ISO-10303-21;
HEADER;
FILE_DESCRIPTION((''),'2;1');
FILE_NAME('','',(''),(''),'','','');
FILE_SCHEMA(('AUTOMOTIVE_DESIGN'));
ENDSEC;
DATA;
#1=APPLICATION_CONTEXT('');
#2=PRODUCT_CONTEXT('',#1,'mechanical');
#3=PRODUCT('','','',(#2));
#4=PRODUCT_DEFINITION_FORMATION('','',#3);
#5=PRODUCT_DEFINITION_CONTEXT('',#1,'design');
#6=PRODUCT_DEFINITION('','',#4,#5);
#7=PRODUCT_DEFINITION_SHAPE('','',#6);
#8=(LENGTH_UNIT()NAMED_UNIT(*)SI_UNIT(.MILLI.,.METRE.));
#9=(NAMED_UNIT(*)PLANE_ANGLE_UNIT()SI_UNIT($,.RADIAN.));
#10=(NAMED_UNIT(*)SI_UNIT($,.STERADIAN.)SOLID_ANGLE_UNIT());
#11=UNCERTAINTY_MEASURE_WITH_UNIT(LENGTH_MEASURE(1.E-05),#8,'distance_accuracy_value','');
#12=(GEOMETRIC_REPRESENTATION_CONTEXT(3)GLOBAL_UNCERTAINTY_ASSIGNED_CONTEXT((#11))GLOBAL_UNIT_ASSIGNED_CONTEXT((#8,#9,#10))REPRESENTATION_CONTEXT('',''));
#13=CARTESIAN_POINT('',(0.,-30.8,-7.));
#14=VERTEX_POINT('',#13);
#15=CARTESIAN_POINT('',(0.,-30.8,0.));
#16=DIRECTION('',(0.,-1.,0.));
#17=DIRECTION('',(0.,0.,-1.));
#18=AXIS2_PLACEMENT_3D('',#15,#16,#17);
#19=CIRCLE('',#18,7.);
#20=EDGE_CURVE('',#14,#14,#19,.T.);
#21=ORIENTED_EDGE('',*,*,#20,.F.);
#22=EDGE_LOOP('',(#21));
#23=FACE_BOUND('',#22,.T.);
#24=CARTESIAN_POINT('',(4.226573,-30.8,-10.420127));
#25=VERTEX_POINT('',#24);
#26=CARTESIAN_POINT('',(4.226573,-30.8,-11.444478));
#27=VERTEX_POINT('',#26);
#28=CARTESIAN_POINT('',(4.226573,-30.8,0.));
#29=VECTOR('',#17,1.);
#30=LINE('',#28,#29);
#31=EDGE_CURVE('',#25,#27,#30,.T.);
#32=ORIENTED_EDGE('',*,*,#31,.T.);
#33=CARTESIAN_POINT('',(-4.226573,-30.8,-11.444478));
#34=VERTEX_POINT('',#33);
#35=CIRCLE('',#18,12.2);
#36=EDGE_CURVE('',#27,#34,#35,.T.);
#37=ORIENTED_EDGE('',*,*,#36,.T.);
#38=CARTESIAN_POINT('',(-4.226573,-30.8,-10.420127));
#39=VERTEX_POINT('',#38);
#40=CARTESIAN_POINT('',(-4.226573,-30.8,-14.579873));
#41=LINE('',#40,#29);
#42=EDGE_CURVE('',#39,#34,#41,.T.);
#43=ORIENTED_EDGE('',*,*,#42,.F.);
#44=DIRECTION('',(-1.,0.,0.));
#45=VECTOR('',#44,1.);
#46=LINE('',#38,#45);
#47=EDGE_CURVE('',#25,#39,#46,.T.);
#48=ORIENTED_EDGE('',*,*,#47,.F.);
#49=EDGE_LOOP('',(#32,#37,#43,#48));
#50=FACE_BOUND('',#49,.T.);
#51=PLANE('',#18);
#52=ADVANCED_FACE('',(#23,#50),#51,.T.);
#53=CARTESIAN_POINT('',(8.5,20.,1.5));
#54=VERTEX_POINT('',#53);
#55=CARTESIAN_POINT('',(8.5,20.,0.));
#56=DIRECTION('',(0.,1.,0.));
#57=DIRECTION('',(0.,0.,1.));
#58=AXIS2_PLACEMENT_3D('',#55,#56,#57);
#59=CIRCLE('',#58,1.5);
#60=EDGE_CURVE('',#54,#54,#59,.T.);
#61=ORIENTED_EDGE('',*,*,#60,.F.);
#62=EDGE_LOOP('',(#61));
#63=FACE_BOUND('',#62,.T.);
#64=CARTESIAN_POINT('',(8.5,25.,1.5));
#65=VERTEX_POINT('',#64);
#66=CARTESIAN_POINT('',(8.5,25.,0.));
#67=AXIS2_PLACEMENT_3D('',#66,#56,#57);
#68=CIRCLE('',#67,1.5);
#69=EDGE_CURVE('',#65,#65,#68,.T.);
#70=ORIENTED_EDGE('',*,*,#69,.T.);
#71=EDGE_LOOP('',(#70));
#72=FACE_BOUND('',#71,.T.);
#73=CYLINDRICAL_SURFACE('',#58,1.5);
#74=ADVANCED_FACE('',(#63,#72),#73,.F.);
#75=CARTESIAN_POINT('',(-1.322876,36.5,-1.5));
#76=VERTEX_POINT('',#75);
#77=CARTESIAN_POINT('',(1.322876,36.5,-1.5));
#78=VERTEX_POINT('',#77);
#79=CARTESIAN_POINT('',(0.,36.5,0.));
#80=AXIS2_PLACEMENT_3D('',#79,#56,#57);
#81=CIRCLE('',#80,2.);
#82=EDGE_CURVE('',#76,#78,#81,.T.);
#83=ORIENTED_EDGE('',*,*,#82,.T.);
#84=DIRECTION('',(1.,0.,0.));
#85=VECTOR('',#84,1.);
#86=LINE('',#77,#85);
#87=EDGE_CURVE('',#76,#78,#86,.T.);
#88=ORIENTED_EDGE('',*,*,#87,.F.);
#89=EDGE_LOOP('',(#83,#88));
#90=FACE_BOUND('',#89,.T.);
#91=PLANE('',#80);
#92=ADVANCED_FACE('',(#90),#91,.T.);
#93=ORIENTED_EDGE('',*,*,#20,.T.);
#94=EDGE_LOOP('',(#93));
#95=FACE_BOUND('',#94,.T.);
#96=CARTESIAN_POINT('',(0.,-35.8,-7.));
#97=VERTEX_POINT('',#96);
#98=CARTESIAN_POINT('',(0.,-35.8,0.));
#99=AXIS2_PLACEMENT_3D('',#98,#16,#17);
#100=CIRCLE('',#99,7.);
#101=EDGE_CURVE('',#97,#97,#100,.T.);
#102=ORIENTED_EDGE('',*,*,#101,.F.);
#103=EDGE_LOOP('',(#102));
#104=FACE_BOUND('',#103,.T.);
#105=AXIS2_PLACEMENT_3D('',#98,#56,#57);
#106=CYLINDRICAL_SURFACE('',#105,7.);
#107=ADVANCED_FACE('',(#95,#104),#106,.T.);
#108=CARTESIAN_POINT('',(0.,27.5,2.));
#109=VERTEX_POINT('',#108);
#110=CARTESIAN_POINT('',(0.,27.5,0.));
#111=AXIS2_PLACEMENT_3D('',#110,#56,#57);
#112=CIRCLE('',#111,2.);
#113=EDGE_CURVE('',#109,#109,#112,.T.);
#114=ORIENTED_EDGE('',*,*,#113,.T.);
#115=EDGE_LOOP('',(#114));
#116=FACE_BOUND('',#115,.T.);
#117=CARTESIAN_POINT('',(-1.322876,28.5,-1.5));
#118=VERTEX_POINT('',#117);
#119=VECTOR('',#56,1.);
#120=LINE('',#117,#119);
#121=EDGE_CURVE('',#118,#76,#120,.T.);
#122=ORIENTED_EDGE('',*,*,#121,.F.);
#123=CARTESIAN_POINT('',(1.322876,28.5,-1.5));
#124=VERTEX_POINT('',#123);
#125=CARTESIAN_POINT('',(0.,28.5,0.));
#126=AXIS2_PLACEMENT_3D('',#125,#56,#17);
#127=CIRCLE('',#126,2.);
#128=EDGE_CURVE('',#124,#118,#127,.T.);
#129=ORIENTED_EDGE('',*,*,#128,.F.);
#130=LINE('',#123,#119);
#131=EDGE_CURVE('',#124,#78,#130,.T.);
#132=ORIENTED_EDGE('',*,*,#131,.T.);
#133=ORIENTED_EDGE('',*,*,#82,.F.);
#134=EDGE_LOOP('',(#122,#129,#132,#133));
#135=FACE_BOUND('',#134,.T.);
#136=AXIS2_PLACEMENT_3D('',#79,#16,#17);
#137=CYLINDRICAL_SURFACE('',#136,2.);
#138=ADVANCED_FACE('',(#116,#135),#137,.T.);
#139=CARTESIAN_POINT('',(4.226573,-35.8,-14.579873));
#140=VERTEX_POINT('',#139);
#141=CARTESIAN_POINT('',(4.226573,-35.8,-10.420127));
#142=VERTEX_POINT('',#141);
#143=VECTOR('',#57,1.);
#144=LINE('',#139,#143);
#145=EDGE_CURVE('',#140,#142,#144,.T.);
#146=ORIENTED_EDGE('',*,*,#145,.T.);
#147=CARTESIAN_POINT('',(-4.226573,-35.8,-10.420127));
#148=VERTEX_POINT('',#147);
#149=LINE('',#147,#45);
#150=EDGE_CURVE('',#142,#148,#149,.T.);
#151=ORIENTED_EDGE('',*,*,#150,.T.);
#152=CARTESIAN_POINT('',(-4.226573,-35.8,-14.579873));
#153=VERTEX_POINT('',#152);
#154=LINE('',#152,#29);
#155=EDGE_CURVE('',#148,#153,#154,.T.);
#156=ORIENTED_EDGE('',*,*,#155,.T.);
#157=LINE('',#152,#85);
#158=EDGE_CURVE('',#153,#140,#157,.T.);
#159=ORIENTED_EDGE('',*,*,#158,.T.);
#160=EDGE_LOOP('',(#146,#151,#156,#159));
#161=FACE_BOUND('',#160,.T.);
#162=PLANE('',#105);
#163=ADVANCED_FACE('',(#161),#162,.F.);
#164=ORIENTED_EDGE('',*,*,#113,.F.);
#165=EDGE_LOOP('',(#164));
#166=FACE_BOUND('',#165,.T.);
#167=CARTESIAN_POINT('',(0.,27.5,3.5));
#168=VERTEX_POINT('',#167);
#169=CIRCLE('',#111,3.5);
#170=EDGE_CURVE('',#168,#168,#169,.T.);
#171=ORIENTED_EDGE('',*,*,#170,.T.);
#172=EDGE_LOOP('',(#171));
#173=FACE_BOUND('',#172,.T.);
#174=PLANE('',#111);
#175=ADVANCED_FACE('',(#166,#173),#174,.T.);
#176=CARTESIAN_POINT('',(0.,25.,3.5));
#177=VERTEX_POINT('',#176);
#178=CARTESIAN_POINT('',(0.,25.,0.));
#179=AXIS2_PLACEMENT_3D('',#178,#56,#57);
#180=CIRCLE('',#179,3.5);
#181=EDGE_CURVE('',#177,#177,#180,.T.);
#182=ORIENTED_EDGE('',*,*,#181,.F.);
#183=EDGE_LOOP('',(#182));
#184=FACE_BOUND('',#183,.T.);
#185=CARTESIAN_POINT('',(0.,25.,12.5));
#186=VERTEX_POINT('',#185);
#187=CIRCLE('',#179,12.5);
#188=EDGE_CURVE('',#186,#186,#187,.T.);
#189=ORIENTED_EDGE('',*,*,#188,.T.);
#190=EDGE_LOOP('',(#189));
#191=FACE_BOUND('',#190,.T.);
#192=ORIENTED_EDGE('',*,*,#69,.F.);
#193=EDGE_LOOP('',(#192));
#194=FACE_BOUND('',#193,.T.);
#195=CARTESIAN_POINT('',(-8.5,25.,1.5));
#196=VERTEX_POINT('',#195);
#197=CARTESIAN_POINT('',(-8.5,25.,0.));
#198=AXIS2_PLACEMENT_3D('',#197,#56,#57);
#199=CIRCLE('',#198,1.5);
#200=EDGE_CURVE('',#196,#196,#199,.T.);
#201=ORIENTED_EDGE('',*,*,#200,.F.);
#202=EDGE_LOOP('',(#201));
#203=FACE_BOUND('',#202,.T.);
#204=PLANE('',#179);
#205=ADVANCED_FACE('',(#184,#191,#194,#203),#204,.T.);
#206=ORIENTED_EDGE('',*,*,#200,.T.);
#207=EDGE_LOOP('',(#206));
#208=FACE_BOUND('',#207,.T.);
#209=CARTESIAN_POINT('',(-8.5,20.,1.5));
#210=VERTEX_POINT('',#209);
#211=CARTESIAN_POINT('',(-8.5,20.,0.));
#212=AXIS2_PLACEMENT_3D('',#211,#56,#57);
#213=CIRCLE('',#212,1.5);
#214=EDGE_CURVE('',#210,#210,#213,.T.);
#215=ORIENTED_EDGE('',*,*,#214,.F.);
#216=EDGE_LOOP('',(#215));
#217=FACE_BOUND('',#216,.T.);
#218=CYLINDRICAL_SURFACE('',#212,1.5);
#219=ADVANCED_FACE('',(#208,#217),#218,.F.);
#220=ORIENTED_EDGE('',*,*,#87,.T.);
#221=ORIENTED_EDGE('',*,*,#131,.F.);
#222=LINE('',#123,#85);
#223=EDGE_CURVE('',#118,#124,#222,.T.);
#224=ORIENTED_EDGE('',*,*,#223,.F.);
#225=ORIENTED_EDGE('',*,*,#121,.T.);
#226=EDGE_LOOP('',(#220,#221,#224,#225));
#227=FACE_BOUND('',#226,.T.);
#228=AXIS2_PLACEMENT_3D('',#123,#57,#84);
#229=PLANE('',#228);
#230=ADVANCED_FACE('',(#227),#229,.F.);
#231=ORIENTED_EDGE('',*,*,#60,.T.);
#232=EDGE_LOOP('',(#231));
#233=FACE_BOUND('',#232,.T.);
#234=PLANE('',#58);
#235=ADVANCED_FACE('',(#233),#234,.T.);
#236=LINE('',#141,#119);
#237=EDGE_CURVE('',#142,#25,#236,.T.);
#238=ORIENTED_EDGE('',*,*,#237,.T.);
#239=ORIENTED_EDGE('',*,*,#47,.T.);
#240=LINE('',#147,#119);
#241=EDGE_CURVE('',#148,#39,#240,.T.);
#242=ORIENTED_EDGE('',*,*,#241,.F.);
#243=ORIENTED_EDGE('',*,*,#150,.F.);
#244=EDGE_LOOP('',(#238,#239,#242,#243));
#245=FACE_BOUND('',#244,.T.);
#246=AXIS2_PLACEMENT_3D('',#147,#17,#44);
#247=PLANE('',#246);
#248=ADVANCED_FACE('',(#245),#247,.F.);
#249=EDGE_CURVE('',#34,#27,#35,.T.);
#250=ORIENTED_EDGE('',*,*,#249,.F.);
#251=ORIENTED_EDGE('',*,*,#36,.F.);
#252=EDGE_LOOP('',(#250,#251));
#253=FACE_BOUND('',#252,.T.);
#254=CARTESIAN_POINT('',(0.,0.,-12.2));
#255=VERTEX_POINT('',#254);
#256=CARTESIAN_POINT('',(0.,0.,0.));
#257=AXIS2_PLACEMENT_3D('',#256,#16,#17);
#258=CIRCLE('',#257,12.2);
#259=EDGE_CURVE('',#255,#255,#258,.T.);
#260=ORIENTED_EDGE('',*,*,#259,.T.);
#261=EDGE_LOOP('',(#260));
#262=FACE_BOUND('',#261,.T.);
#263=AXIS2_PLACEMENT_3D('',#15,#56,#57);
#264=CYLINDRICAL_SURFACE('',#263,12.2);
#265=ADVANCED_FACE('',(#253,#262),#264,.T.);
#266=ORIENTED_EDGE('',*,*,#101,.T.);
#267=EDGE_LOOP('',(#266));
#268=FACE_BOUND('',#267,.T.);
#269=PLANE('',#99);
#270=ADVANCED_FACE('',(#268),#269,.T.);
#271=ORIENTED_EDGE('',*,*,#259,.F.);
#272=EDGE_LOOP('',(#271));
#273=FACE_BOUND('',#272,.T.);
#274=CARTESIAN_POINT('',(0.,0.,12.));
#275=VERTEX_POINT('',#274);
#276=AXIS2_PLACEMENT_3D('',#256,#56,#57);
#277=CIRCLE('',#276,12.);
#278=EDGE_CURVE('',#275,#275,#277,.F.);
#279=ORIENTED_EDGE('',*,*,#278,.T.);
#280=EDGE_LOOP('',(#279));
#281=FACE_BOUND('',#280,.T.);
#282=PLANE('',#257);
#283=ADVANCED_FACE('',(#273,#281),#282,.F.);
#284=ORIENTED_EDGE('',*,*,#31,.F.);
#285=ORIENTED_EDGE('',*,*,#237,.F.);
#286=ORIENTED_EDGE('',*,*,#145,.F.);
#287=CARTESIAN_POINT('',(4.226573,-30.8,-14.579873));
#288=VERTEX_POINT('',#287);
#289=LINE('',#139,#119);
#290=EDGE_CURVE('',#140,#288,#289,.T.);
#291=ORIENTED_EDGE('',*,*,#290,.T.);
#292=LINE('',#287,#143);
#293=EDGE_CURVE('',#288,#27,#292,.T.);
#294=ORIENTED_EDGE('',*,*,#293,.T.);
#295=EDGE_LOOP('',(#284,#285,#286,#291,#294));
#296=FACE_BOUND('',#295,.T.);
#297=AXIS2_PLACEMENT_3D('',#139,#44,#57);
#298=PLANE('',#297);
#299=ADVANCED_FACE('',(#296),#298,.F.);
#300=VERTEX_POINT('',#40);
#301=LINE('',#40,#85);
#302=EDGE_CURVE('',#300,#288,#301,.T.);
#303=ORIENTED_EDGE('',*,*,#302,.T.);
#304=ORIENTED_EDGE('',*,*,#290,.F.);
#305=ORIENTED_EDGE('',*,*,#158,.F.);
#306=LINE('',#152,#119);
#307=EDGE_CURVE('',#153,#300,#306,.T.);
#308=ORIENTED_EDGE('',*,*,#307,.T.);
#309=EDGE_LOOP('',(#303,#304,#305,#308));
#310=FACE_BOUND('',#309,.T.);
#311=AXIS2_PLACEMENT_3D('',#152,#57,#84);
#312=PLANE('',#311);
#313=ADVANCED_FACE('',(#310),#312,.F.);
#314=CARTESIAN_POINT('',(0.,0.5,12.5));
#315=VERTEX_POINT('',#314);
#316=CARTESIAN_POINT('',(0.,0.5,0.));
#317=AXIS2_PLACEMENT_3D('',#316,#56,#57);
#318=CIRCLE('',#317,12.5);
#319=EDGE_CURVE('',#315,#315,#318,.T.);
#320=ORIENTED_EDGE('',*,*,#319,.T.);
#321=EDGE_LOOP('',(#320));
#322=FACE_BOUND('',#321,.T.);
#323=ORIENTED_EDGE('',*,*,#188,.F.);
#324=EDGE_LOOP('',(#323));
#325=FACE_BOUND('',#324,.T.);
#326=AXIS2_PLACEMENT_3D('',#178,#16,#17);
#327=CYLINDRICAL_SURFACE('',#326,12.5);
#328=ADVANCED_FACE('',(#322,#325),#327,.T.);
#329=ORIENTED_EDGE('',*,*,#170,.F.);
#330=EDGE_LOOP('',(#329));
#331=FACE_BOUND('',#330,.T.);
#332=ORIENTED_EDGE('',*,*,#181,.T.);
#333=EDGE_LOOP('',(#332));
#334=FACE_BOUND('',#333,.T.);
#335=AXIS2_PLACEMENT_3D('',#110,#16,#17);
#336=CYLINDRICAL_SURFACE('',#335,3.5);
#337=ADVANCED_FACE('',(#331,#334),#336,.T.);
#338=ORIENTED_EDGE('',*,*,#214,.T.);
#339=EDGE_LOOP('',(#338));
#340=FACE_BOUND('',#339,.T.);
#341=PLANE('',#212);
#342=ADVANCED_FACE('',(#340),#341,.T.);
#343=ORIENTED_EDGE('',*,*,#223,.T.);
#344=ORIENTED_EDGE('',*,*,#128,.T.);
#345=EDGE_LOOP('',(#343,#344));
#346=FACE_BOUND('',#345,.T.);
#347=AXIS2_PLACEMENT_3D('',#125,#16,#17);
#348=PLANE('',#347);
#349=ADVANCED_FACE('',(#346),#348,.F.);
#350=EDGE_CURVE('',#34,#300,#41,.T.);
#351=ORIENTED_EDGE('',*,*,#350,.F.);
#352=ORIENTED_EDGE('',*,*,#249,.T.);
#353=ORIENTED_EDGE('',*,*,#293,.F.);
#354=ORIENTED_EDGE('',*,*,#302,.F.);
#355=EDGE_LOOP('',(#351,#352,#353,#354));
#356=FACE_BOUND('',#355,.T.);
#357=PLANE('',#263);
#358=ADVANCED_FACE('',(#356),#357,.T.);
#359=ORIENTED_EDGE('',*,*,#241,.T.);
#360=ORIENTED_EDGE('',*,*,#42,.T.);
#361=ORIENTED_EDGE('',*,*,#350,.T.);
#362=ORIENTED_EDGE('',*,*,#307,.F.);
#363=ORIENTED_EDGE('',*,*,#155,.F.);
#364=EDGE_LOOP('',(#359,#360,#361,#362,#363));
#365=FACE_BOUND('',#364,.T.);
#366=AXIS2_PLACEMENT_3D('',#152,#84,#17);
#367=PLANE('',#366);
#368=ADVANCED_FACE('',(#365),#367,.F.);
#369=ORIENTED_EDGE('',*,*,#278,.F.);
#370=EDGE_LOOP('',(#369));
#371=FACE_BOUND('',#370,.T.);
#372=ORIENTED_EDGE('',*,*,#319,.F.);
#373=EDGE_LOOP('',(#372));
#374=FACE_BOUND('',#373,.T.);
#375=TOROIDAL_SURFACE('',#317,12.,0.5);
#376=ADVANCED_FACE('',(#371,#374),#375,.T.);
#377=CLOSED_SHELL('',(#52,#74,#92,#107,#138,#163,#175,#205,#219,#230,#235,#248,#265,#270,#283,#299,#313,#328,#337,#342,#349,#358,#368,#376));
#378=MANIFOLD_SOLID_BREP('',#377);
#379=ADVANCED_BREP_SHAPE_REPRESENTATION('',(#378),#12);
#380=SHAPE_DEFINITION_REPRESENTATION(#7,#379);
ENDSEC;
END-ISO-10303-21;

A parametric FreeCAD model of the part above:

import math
import FreeCAD as App
import Part
import Sketcher

V = App.Vector
Q = App.Units.Quantity


def edges_at(feature, points):
    """Names of the edges that pass closest to the given points."""
    edges = feature.Shape.Edges
    near = lambda p: min(range(len(edges)), key=lambda i: edges[i].distToShape(Part.Vertex(*p))[0])
    return sorted({f"Edge{near(p) + 1}" for p in points})


def add_polygon(sketch, points):
    """Adds a closed chain of lines whose ends are joined by coincident constraints."""
    first, n = sketch.GeometryCount, len(points)
    for a, b in zip(points, points[1:] + points[:1]):
        sketch.addGeometry(Part.LineSegment(App.Vector(*a, 0), App.Vector(*b, 0)), False)
    for i in range(n):
        sketch.addConstraint(Sketcher.Constraint("Coincident", first + i, 2, first + (i + 1) % n, 1))

doc = App.newDocument("Part")
params = doc.addObject("Spreadsheet::Sheet", "Params")
for row, (alias, value) in enumerate([
    ("sketch1_diameter", "25 mm"),
    ("pad1_length", "25 mm"),
    ("fillet_radius", "0.5 mm"),
    ("sketch2_diameter", "24.4 mm"),
    ("pad2_length", "30.8 mm"),
    ("sketch3_diameter", "7 mm"),
    ("pad3_length", "2.5 mm"),
    ("sketch4_diameter", "4 mm"),
    ("pad4_length", "9 mm"),
    ("sketch5_radius", "2 mm"),
    ("pocket1_length", "8 mm"),
    ("sketch6_diameter", "3 mm"),
    ("pocket2_length", "5 mm"),
    ("sketch7_diameter", "14 mm"),
    ("pad5_length", "5 mm"),
], start=1):
    params.set(f"A{row}", alias)
    params.set(f"B{row}", "=" + value)
    params.setAlias(f"B{row}", alias)

body = doc.addObject("PartDesign::Body", "Body")

# Sketch on XZ plane
sketch1 = body.newObject("Sketcher::SketchObject", "Sketch")
sketch1.AttachmentSupport = (doc.getObject("XZ_Plane"), [""])
sketch1.MapMode = "FlatFace"
sketch1.addGeometry(Part.Circle(V(0, 0, 0), V(0, 0, 1), 12.5), False)
sketch1.addConstraint([
    Sketcher.Constraint("Coincident", 0, 3, -1, 1),
    Sketcher.Constraint("Diameter", 0, Q("25 mm")),
])
sketch1.setExpression("Constraints[1]", "Params.sketch1_diameter")
pad1 = body.newObject("PartDesign::Pad", "Pad")
pad1.Profile = sketch1
pad1.setExpression("Length", "Params.pad1_length")
pad1.Reversed = True
doc.recompute()

fillet = body.newObject("PartDesign::Fillet", "Fillet")
fillet.Base = (pad1, edges_at(pad1, [(0, 0, -12.5)]))
fillet.setExpression("Radius", "Params.fillet_radius")

# Sketch on XZ plane
sketch2 = body.newObject("Sketcher::SketchObject", "Sketch001")
sketch2.AttachmentSupport = (doc.getObject("XZ_Plane"), [""])
sketch2.MapMode = "FlatFace"
sketch2.addGeometry(Part.Circle(V(0, 0, 0), V(0, 0, 1), 12.2), False)
sketch2.addConstraint([
    Sketcher.Constraint("Coincident", 0, 3, -1, 1),
    Sketcher.Constraint("Diameter", 0, Q("24.4 mm")),
])
sketch2.setExpression("Constraints[1]", "Params.sketch2_diameter")
pad2 = body.newObject("PartDesign::Pad", "Pad001")
pad2.Profile = sketch2
pad2.setExpression("Length", "Params.pad2_length")

# Sketch on XZ plane
sketch3 = body.newObject("Sketcher::SketchObject", "Sketch002")
sketch3.AttachmentSupport = (doc.getObject("XZ_Plane"), [""])
sketch3.MapMode = "FlatFace"
sketch3.AttachmentOffset = App.Placement(V(0, 0, -25), App.Rotation())
sketch3.addGeometry(Part.Circle(V(0, 0, 0), V(0, 0, 1), 3.5), False)
sketch3.addConstraint([
    Sketcher.Constraint("Coincident", 0, 3, -1, 1),
    Sketcher.Constraint("Diameter", 0, Q("7 mm")),
])
sketch3.setExpression("Constraints[1]", "Params.sketch3_diameter")
pad3 = body.newObject("PartDesign::Pad", "Pad002")
pad3.Profile = sketch3
pad3.setExpression("Length", "Params.pad3_length")
pad3.Reversed = True

# Sketch on XZ plane
sketch4 = body.newObject("Sketcher::SketchObject", "Sketch003")
sketch4.AttachmentSupport = (doc.getObject("XZ_Plane"), [""])
sketch4.MapMode = "FlatFace"
sketch4.AttachmentOffset = App.Placement(V(0, 0, -27.5), App.Rotation())
sketch4.addGeometry(Part.Circle(V(0, 0, 0), V(0, 0, 1), 2), False)
sketch4.addConstraint([
    Sketcher.Constraint("Coincident", 0, 3, -1, 1),
    Sketcher.Constraint("Diameter", 0, Q("4 mm")),
])
sketch4.setExpression("Constraints[1]", "Params.sketch4_diameter")
pad4 = body.newObject("PartDesign::Pad", "Pad003")
pad4.Profile = sketch4
pad4.setExpression("Length", "Params.pad4_length")
pad4.Reversed = True

# Sketch on XZ plane
sketch5 = body.newObject("Sketcher::SketchObject", "Sketch004")
sketch5.AttachmentSupport = (doc.getObject("XZ_Plane"), [""])
sketch5.MapMode = "FlatFace"
sketch5.AttachmentOffset = App.Placement(V(0, 0, -28.5), App.Rotation())
sketch5.addGeometry([
    Part.LineSegment(V(-1.322876, -1.5, 0), V(1.322876, -1.5, 0)),
    Part.ArcOfCircle(Part.Circle(V(0, 0, 0), V(0, 0, 1), 2), math.radians(-131.409622), math.radians(-48.590378)),
], False)
sketch5.addConstraint([
    Sketcher.Constraint("Coincident", 0, 1, 1, 1),
    Sketcher.Constraint("Coincident", 1, 2, 0, 2),
    Sketcher.Constraint("Horizontal", 0),
    Sketcher.Constraint("Coincident", 1, 3, -1, 1),
    Sketcher.Constraint("Radius", 1, Q("2 mm")),
    Sketcher.Constraint("DistanceY", 0, 1, -1, 1, Q("1.5 mm")),
])
sketch5.setExpression("Constraints[4]", "Params.sketch5_radius")
pocket1 = body.newObject("PartDesign::Pocket", "Pocket")
pocket1.Profile = sketch5
pocket1.setExpression("Length", "Params.pocket1_length")

# Sketch on XZ plane
sketch6 = body.newObject("Sketcher::SketchObject", "Sketch005")
sketch6.AttachmentSupport = (doc.getObject("XZ_Plane"), [""])
sketch6.MapMode = "FlatFace"
sketch6.AttachmentOffset = App.Placement(V(0, 0, -25), App.Rotation())
sketch6.addGeometry([
    Part.Circle(V(-8.5, 0, 0), V(0, 0, 1), 1.5),
    Part.Circle(V(8.5, 0, 0), V(0, 0, 1), 1.5),
], False)
sketch6.addConstraint([
    Sketcher.Constraint("Equal", 0, 1),
    Sketcher.Constraint("Symmetric", 0, 3, 1, 3, -1, 1),
    Sketcher.Constraint("PointOnObject", 0, 3, -1),
    Sketcher.Constraint("Diameter", 0, Q("3 mm")),
    Sketcher.Constraint("DistanceX", 0, 3, 1, 3, Q("17 mm")),
])
sketch6.setExpression("Constraints[3]", "Params.sketch6_diameter")
pocket2 = body.newObject("PartDesign::Pocket", "Pocket001")
pocket2.Profile = sketch6
pocket2.setExpression("Length", "Params.pocket2_length")
pocket2.Reversed = True

# Sketch on XZ plane
sketch7 = body.newObject("Sketcher::SketchObject", "Sketch006")
sketch7.AttachmentSupport = (doc.getObject("XZ_Plane"), [""])
sketch7.MapMode = "FlatFace"
sketch7.AttachmentOffset = App.Placement(V(0, 0, 30.8), App.Rotation())
sketch7.addGeometry(Part.Circle(V(0, 0, 0), V(0, 0, 1), 7), False)  # 0
add_polygon(sketch7, [(-4.226573, -10.420127), (-4.226573, -14.579873), (4.226573, -14.579873), (4.226573, -10.420127)])  # lines 1-4
sketch7.addConstraint([
    Sketcher.Constraint("Vertical", 1),
    Sketcher.Constraint("Horizontal", 2),
    Sketcher.Constraint("Vertical", 3),
    Sketcher.Constraint("Horizontal", 4),
    Sketcher.Constraint("Coincident", 0, 3, -1, 1),
    Sketcher.Constraint("Diameter", 0, Q("14 mm")),
    Sketcher.Constraint("DistanceX", 2, 1, 2, 2, Q("8.453145 mm")),
    Sketcher.Constraint("DistanceY", 1, 2, 1, 1, Q("4.159745 mm")),
    Sketcher.Constraint("DistanceX", 1, 2, -1, 1, Q("4.226573 mm")),
    Sketcher.Constraint("DistanceY", 1, 2, -1, 1, Q("14.579873 mm")),
])
sketch7.setExpression("Constraints[9]", "Params.sketch7_diameter")
pad5 = body.newObject("PartDesign::Pad", "Pad004")
pad5.Profile = sketch7
pad5.setExpression("Length", "Params.pad5_length")

doc.recompute()
